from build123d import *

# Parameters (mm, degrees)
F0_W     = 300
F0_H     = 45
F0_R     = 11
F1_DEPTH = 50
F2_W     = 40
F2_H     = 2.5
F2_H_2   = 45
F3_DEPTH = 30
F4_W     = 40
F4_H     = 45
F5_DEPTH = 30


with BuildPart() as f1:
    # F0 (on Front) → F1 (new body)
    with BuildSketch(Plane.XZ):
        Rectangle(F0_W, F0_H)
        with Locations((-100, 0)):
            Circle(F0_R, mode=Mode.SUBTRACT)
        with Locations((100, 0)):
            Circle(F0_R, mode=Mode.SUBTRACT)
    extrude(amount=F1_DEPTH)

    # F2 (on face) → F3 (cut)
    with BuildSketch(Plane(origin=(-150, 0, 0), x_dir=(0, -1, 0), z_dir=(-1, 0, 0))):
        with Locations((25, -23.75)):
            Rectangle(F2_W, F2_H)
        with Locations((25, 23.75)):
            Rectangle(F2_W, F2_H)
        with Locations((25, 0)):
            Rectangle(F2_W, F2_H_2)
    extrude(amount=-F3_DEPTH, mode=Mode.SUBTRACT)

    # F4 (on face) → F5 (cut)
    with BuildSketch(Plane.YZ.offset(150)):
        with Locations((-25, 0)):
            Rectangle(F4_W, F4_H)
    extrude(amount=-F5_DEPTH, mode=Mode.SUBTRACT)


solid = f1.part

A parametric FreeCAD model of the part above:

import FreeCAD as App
import Part
import Sketcher

V = App.Vector


def add_polygon(sketch, points):
    """Adds a closed chain of lines whose ends are joined by coincident constraints."""
    first, n = sketch.GeometryCount, len(points)
    for a, b in zip(points, points[1:] + points[:1]):
        sketch.addGeometry(Part.LineSegment(App.Vector(*a, 0), App.Vector(*b, 0)), False)
    for i in range(n):
        sketch.addConstraint(Sketcher.Constraint("Coincident", first + i, 2, first + (i + 1) % n, 1))

doc = App.newDocument("Part")
params = doc.addObject("Spreadsheet::Sheet", "Params")
for row, (alias, value) in enumerate([
    ("sketch1_diameter", "22 mm"),
    ("sketch1_width", "300 mm"),
    ("sketch1_height", "45 mm"),
    ("pad1_length", "50 mm"),
    ("sketch2_width", "40 mm"),
    ("sketch2_height", "50 mm"),
    ("pocket1_length", "30 mm"),
    ("sketch3_width", "40 mm"),
    ("sketch3_height", "45 mm"),
    ("pocket2_length", "30 mm"),
], start=1):
    params.set(f"A{row}", alias)
    params.set(f"B{row}", "=" + value)
    params.setAlias(f"B{row}", alias)

body = doc.addObject("PartDesign::Body", "Body")

sketch1 = body.newObject("Sketcher::SketchObject", "Sketch")
sketch1.AttachmentSupport = (doc.getObject("XZ_Plane"), [""])
sketch1.MapMode = "FlatFace"
add_polygon(sketch1, [(-150, 22), (-150, -22), (150, -22), (150, 22)])
sketch1.addGeometry(Part.Circle(V(-100, 0, 0), V(0, 0, 1), 11), False)
sketch1.addGeometry(Part.Circle(V(100, 0, 0), V(0, 0, 1), 11), False)
sketch1.addConstraint([
    Sketcher.Constraint("Vertical", 0),
    Sketcher.Constraint("Horizontal", 1),
    Sketcher.Constraint("Vertical", 2),
    Sketcher.Constraint("Horizontal", 3),
    Sketcher.Constraint("Equal", 4, 5),
    Sketcher.Constraint("Symmetric", 4, 3, 5, 3, -1, 1),
    Sketcher.Constraint("Symmetric", 0, 2, 2, 2, -1, 1),
    Sketcher.Constraint("PointOnObject", 4, 3, -1),
    Sketcher.Constraint("Diameter", 4, 22.0),
    Sketcher.Constraint("DistanceX", 1, 1, 1, 2, 300.0),
    Sketcher.Constraint("DistanceY", 0, 2, 0, 1, 45.0),
    Sketcher.Constraint("DistanceX", 4, 3, -1, 1, 100.0),
])
sketch1.setExpression("Constraints[12]", "Params.sketch1_diameter")
sketch1.setExpression("Constraints[13]", "Params.sketch1_width")
sketch1.setExpression("Constraints[14]", "Params.sketch1_height")
pad1 = body.newObject("PartDesign::Pad", "Pad")
pad1.Profile = sketch1
pad1.setExpression("Length", "Params.pad1_length")

sketch2 = body.newObject("Sketcher::SketchObject", "Sketch001")
sketch2.AttachmentSupport = (doc.getObject("YZ_Plane"), [""])
sketch2.MapMode = "FlatFace"
sketch2.AttachmentOffset = App.Placement(V(0, 0, -150), App.Rotation())
add_polygon(sketch2, [(-5, -25), (-45, -25), (-45, 25), (-5, 25)])
sketch2.addConstraint([
    Sketcher.Constraint("Horizontal", 0),
    Sketcher.Constraint("Vertical", 1),
    Sketcher.Constraint("Horizontal", 2),
    Sketcher.Constraint("Vertical", 3),
    Sketcher.Constraint("DistanceX", 0, 2, 0, 1, 40.0),
    Sketcher.Constraint("DistanceY", 1, 1, 1, 2, 50.0),
    Sketcher.Constraint("DistanceX", 0, 2, -1, 1, 45.0),
    Sketcher.Constraint("DistanceY", 0, 2, -1, 1, 25.0),
])
sketch2.setExpression("Constraints[8]", "Params.sketch2_width")
sketch2.setExpression("Constraints[9]", "Params.sketch2_height")
pocket1 = body.newObject("PartDesign::Pocket", "Pocket")
pocket1.Profile = sketch2
pocket1.setExpression("Length", "Params.pocket1_length")
pocket1.Reversed = True

sketch3 = body.newObject("Sketcher::SketchObject", "Sketch002")
sketch3.AttachmentSupport = (doc.getObject("YZ_Plane"), [""])
sketch3.MapMode = "FlatFace"
sketch3.AttachmentOffset = App.Placement(V(0, 0, 150), App.Rotation())
add_polygon(sketch3, [(-45, 22), (-45, -22), (-5, -22), (-5, 22)])
sketch3.addConstraint([
    Sketcher.Constraint("Vertical", 0),
    Sketcher.Constraint("Horizontal", 1),
    Sketcher.Constraint("Vertical", 2),
    Sketcher.Constraint("Horizontal", 3),
    Sketcher.Constraint("DistanceX", 1, 1, 1, 2, 40.0),
    Sketcher.Constraint("DistanceY", 0, 2, 0, 1, 45.0),
    Sketcher.Constraint("DistanceX", 0, 2, -1, 1, 45.0),
    Sketcher.Constraint("DistanceY", 0, 2, -1, 1, 22.5),
])
sketch3.setExpression("Constraints[8]", "Params.sketch3_width")
sketch3.setExpression("Constraints[9]", "Params.sketch3_height")
pocket2 = body.newObject("PartDesign::Pocket", "Pocket001")
pocket2.Profile = sketch3
pocket2.setExpression("Length", "Params.pocket2_length")

doc.recompute()
